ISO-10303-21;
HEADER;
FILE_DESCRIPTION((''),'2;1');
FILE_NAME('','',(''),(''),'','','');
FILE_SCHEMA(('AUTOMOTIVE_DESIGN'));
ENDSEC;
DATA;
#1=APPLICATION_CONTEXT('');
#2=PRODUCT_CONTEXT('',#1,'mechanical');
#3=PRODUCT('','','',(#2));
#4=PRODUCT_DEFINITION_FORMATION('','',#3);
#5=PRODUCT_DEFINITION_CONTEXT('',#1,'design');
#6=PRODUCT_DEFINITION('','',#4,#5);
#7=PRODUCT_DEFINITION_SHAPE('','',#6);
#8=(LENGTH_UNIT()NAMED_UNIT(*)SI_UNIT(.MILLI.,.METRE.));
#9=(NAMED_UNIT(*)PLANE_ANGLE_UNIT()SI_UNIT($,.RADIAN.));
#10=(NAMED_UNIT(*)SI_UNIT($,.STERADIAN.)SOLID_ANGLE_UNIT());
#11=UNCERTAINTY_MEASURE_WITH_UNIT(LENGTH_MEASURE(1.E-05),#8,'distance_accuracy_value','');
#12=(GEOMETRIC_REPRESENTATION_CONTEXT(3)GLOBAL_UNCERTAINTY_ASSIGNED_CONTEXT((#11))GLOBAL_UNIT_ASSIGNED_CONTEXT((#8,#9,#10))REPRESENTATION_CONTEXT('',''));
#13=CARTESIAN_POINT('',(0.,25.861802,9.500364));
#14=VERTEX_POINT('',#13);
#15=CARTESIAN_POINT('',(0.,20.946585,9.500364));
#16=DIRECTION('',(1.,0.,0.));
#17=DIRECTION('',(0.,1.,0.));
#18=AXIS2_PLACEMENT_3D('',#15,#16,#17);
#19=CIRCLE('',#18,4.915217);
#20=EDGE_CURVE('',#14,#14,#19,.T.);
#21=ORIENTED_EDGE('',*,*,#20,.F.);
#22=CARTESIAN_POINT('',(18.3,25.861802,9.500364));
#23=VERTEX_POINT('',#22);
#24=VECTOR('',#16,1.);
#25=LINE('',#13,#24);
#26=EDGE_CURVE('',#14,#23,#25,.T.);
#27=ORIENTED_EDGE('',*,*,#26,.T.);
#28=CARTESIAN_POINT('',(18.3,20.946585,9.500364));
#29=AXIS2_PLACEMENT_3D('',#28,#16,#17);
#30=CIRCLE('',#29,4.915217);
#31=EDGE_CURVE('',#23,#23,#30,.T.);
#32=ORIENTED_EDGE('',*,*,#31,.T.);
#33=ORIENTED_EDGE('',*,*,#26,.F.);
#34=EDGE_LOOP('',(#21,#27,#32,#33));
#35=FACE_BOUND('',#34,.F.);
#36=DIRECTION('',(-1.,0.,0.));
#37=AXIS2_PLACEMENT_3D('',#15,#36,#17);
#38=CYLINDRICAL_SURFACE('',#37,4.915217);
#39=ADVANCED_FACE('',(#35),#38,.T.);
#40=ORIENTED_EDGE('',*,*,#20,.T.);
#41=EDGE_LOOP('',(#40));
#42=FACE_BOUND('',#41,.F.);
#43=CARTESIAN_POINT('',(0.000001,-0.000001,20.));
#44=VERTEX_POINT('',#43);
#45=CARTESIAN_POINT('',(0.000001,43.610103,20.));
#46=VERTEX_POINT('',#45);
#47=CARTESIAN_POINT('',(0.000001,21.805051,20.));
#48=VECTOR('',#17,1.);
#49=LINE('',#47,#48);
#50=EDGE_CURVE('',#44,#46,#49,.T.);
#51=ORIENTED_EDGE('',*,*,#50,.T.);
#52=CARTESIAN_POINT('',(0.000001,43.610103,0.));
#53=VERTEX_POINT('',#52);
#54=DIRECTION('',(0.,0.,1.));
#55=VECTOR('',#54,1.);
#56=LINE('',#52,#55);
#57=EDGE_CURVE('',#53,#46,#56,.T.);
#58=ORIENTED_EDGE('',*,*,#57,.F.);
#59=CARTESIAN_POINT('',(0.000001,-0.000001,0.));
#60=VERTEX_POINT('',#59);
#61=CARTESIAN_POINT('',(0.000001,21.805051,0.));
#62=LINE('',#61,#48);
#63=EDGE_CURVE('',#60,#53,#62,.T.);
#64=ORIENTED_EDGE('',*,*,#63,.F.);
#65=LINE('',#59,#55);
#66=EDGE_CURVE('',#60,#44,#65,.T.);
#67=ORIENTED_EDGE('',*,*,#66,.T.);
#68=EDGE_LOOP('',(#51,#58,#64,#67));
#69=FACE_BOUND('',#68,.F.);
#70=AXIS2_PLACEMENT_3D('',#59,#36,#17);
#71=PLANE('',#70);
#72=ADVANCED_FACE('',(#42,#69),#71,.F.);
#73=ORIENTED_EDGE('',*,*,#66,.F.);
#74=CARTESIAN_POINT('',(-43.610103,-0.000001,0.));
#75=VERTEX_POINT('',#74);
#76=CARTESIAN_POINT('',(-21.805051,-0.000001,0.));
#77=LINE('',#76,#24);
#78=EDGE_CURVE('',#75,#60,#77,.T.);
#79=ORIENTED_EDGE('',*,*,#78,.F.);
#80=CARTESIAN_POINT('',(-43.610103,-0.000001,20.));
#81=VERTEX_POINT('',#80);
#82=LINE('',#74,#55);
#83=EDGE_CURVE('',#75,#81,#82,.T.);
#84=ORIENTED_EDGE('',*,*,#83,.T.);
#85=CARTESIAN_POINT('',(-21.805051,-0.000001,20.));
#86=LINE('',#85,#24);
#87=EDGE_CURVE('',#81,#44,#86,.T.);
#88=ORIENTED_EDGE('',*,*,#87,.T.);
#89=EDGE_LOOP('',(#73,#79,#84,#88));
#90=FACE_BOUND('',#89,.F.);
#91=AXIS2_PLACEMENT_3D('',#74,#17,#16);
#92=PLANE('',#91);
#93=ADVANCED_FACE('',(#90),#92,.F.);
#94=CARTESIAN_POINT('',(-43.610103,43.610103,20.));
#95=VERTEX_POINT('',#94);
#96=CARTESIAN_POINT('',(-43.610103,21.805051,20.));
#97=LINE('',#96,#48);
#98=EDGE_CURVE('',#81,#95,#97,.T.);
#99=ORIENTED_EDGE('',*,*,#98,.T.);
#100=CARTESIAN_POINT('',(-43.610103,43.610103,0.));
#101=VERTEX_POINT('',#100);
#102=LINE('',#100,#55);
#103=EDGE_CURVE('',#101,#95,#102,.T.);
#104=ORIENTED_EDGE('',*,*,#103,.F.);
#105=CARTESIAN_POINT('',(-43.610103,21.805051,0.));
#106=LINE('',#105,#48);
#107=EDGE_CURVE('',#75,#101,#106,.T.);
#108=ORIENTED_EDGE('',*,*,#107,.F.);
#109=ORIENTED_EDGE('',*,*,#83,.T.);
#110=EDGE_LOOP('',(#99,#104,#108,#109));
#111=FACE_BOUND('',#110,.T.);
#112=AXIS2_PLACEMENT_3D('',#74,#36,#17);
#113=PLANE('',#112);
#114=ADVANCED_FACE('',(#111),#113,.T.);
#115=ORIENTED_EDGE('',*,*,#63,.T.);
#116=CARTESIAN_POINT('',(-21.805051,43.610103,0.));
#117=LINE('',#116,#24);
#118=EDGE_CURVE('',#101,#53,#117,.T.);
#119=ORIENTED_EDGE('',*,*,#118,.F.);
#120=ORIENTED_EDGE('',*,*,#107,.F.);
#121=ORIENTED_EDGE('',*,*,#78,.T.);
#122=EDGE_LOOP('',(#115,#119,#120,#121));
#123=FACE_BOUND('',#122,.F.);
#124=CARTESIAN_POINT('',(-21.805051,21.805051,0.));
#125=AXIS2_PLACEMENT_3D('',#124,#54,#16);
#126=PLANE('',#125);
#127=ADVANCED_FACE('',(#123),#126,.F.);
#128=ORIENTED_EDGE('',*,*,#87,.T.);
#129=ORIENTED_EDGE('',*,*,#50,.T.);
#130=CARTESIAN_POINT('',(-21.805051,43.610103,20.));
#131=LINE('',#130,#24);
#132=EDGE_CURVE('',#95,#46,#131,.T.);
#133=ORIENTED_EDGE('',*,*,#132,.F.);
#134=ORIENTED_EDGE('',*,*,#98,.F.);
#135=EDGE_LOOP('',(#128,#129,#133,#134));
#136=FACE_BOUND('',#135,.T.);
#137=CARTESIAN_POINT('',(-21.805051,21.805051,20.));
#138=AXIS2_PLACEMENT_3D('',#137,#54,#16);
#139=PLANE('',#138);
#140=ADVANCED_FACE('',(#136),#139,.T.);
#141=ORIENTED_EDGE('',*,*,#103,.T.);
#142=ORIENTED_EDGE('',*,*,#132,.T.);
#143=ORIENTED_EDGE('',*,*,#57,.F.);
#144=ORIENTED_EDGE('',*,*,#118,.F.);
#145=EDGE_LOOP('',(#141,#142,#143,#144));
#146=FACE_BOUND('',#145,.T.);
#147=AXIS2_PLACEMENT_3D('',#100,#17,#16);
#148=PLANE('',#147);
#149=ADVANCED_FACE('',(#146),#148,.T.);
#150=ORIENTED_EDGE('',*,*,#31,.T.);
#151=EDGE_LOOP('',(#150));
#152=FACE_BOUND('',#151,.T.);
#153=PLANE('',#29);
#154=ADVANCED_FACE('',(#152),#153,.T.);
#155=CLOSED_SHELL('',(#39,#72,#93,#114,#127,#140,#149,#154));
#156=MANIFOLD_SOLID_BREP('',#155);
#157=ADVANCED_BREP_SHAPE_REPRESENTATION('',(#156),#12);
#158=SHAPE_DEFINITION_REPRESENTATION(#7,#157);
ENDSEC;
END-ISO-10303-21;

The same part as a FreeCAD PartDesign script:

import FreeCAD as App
import Part
import Sketcher
Q = App.Units.Quantity

doc = App.newDocument("Part")
body = doc.addObject("PartDesign::Body", "Body")

# Sketch on XY plane
sketch1 = body.newObject("Sketcher::SketchObject", "Sketch")
sketch1.AttachmentSupport = (doc.getObject("XY_Plane"), [""])
sketch1.MapMode = "FlatFace"
sketch1.addGeometry([
    Part.LineSegment(App.Vector(-44, 44, 0), App.Vector(-44, 0, 0)),
    Part.LineSegment(App.Vector(-44, 0, 0), App.Vector(0, 0, 0)),
    Part.LineSegment(App.Vector(0, 0, 0), App.Vector(0, 44, 0)),
    Part.LineSegment(App.Vector(0, 44, 0), App.Vector(-44, 44, 0)),
], False)
sketch1.addConstraint([
    Sketcher.Constraint("Coincident", 0, 2, 1, 1),
    Sketcher.Constraint("Coincident", 1, 2, 2, 1),
    Sketcher.Constraint("Coincident", 2, 2, 3, 1),
    Sketcher.Constraint("Coincident", 3, 2, 0, 1),
    Sketcher.Constraint("Vertical", 0),
    Sketcher.Constraint("Horizontal", 1),
    Sketcher.Constraint("Vertical", 2),
    Sketcher.Constraint("Horizontal", 3),
    Sketcher.Constraint("Coincident", 1, 2, -1, 1),
    Sketcher.Constraint("Equal", 3, 0),
    Sketcher.Constraint("DistanceX", 1, 1, 1, 2, Q("43.610103 mm")),
])
pad1 = body.newObject("PartDesign::Pad", "Pad")
pad1.Profile = sketch1
pad1.Length = 20

# Sketch on YZ plane
sketch2 = body.newObject("Sketcher::SketchObject", "Sketch001")
sketch2.AttachmentSupport = (doc.getObject("YZ_Plane"), [""])
sketch2.MapMode = "FlatFace"
sketch2.addGeometry(Part.Circle(App.Vector(20.9, 9.5, 0), App.Vector(0, 0, 1), 4.9), False)
sketch2.addConstraint([
    Sketcher.Constraint("Diameter", 0, Q("9.830434 mm")),
    Sketcher.Constraint("DistanceX", -1, 1, 0, 3, Q("20.946585 mm")),
    Sketcher.Constraint("DistanceY", -1, 1, 0, 3, Q("9.500364 mm")),
])
pad2 = body.newObject("PartDesign::Pad", "Pad001")
pad2.Profile = sketch2
pad2.Length = 18.3

doc.recompute()
